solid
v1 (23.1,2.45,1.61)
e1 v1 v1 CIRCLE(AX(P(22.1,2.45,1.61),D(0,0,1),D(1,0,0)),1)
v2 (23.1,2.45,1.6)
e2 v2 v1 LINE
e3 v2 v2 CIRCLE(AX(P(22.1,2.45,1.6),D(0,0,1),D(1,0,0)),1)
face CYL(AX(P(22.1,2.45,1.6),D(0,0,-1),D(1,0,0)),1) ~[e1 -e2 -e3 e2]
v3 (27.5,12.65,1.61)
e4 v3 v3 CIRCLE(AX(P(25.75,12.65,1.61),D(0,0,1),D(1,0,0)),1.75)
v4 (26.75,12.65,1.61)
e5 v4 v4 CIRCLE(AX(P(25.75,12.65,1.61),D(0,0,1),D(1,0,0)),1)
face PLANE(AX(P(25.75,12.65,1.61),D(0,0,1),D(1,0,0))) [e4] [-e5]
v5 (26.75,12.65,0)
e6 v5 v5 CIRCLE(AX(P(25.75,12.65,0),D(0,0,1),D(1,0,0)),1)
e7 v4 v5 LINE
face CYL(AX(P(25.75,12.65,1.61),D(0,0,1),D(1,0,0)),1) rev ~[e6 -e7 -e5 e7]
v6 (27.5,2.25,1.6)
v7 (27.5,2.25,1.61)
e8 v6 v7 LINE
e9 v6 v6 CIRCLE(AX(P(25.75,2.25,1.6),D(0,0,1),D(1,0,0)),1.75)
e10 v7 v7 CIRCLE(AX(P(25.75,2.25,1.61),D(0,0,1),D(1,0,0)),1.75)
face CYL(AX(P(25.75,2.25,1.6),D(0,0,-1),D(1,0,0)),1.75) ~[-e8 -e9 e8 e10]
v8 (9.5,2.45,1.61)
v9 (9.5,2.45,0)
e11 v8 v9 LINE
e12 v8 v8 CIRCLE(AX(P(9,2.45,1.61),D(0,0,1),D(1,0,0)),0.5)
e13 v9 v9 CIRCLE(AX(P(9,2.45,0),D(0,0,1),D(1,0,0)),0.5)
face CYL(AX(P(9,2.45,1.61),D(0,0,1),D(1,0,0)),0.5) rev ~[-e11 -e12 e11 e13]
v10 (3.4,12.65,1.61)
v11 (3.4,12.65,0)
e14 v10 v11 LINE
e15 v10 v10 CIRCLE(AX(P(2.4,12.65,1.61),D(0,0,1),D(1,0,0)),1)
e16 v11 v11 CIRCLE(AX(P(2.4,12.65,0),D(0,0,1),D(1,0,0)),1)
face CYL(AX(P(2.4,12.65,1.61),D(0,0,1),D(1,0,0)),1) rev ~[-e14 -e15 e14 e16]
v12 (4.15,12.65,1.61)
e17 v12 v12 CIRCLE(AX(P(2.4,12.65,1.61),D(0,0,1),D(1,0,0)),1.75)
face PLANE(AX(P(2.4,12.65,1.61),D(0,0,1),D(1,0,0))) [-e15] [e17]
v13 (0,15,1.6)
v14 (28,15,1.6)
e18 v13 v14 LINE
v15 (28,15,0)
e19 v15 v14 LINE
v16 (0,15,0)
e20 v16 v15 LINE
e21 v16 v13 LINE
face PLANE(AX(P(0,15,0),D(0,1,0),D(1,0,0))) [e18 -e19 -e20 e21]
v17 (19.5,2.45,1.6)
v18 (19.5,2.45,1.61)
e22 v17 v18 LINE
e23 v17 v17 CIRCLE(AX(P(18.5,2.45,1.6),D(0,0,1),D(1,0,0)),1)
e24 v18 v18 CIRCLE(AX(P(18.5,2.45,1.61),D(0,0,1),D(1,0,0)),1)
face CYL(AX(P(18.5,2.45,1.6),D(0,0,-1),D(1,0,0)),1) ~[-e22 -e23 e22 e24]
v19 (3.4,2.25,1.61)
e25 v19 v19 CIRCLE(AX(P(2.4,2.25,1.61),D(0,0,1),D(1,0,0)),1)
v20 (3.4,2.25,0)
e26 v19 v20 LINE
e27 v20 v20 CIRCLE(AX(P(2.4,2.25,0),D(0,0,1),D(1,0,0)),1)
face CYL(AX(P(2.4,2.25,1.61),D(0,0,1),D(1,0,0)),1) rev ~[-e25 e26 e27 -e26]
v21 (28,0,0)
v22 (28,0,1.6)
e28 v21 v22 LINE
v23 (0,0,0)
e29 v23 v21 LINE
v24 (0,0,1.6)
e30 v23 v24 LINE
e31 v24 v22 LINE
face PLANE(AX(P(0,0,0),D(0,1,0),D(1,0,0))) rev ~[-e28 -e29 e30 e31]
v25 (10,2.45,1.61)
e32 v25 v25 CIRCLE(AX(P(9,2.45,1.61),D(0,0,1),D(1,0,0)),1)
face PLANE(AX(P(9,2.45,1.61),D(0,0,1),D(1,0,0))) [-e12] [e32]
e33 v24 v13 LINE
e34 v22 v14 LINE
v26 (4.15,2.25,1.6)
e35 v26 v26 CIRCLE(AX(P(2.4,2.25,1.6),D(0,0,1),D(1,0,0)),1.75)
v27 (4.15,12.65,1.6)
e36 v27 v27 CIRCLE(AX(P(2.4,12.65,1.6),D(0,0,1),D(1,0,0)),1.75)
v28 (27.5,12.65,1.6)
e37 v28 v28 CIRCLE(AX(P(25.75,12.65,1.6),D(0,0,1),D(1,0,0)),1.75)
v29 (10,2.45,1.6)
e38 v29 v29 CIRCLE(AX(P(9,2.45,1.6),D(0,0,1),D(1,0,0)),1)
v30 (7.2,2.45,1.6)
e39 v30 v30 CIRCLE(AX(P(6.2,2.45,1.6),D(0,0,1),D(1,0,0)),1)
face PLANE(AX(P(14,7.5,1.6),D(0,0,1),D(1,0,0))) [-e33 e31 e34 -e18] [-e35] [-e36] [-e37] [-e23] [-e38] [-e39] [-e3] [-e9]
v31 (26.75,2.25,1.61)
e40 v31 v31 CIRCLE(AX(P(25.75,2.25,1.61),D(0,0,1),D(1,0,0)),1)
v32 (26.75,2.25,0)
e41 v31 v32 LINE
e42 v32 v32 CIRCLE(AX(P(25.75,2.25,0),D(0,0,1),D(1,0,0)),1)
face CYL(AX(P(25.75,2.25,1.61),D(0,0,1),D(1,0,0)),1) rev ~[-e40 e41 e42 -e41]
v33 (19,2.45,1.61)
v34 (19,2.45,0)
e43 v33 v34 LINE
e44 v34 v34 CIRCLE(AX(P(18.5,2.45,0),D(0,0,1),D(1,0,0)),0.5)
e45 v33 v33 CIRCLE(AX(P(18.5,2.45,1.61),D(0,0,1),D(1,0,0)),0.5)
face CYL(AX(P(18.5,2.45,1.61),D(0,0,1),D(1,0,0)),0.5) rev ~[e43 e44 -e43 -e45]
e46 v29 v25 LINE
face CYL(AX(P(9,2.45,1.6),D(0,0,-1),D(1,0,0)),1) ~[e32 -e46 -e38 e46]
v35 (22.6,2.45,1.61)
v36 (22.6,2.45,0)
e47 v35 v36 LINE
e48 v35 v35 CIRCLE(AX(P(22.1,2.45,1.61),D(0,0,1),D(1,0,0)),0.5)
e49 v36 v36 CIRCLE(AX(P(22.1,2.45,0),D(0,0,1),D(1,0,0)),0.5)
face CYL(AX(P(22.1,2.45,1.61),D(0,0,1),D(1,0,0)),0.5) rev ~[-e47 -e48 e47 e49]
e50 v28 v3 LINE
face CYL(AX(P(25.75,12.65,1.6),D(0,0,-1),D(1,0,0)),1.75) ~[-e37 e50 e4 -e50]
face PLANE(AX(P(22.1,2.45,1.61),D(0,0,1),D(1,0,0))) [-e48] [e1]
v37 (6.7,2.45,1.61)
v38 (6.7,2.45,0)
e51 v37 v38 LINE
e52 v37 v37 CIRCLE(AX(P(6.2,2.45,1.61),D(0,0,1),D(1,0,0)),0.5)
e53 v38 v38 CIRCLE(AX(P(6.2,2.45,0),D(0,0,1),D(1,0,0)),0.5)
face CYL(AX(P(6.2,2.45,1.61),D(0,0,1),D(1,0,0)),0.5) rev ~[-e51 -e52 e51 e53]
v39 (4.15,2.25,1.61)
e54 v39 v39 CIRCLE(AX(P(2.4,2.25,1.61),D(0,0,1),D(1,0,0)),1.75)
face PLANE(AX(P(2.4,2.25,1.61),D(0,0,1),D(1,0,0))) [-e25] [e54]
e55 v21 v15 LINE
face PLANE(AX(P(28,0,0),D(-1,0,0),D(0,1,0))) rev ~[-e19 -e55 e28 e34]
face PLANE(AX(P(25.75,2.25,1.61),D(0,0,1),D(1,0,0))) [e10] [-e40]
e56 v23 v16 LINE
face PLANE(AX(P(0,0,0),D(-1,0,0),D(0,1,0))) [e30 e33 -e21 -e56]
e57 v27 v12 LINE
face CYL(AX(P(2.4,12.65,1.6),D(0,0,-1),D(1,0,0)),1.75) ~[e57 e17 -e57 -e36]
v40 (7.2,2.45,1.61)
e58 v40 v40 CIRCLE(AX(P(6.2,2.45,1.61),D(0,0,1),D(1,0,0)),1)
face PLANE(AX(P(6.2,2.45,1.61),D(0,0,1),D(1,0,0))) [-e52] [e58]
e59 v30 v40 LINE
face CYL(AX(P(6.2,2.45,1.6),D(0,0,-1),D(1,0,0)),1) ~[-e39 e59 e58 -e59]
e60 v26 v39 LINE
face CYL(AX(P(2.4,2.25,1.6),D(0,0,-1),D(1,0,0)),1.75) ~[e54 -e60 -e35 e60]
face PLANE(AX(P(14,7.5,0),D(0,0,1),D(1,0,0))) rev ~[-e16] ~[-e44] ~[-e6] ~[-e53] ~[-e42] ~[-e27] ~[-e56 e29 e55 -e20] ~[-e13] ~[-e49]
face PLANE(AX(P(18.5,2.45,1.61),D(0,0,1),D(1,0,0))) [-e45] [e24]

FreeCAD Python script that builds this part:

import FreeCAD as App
import Part
import Sketcher

V = App.Vector

doc = App.newDocument("Part")
body = doc.addObject("PartDesign::Body", "Body")

sketch1 = body.newObject("Sketcher::SketchObject", "Sketch")
sketch1.AttachmentSupport = (doc.getObject("XY_Plane"), [""])
sketch1.MapMode = "FlatFace"
sketch1.addGeometry([
    Part.LineSegment(V(0, 15, 0), V(0, 0, 0)),
    Part.LineSegment(V(0, 0, 0), V(28, 0, 0)),
    Part.LineSegment(V(28, 0, 0), V(28, 15, 0)),
    Part.LineSegment(V(28, 15, 0), V(0, 15, 0)),
], False)
sketch1.addConstraint([
    Sketcher.Constraint("Coincident", 0, 2, 1, 1),
    Sketcher.Constraint("Coincident", 1, 2, 2, 1),
    Sketcher.Constraint("Coincident", 2, 2, 3, 1),
    Sketcher.Constraint("Coincident", 3, 2, 0, 1),
    Sketcher.Constraint("Vertical", 0),
    Sketcher.Constraint("Horizontal", 1),
    Sketcher.Constraint("Vertical", 2),
    Sketcher.Constraint("Horizontal", 3),
    Sketcher.Constraint("Coincident", 0, 2, -1, 1),
    Sketcher.Constraint("DistanceX", 1, 1, 1, 2, 28.0),
    Sketcher.Constraint("DistanceY", 0, 2, 0, 1, 15.0),
])
pad1 = body.newObject("PartDesign::Pad", "Pad")
pad1.Profile = sketch1
pad1.Length = 1.6

sketch2 = body.newObject("Sketcher::SketchObject", "Sketch001")
sketch2.AttachmentSupport = (doc.getObject("XY_Plane"), [""])
sketch2.MapMode = "FlatFace"
sketch2.AttachmentOffset = App.Placement(V(0, 0, 1.6), App.Rotation())
sketch2.addGeometry([
    Part.Circle(V(2.4, 2.25, 0), V(0, 0, 1), 1.75),
    Part.Circle(V(25.75, 2.25, 0), V(0, 0, 1), 1.75),
    Part.Circle(V(2.4, 12.65, 0), V(0, 0, 1), 1.75),
    Part.Circle(V(25.75, 12.65, 0), V(0, 0, 1), 1.75),
    Part.Circle(V(6.2, 2.45, 0), V(0, 0, 1), 1),
    Part.Circle(V(9, 2.45, 0), V(0, 0, 1), 1),
    Part.Circle(V(18.5, 2.45, 0), V(0, 0, 1), 1),
    Part.Circle(V(22.1, 2.45, 0), V(0, 0, 1), 1),
], False)
sketch2.addConstraint([
    Sketcher.Constraint("Equal", 0, 1),
    Sketcher.Constraint("Equal", 1, 2),
    Sketcher.Constraint("Equal", 2, 3),
    Sketcher.Constraint("Equal", 4, 5),
    Sketcher.Constraint("Equal", 5, 6),
    Sketcher.Constraint("Equal", 6, 7),
    Sketcher.Constraint("Horizontal", 0, 3, 1, 3),
    Sketcher.Constraint("Horizontal", 2, 3, 3, 3),
    Sketcher.Constraint("Horizontal", 4, 3, 5, 3),
    Sketcher.Constraint("Horizontal", 5, 3, 6, 3),
    Sketcher.Constraint("Horizontal", 6, 3, 7, 3),
    Sketcher.Constraint("Vertical", 0, 3, 2, 3),
    Sketcher.Constraint("Vertical", 1, 3, 3, 3),
    Sketcher.Constraint("Diameter", 4, 2.0),
    Sketcher.Constraint("Diameter", 0, 3.5),
    Sketcher.Constraint("DistanceX", -1, 1, 5, 3, 9.0),
    Sketcher.Constraint("DistanceX", -1, 1, 0, 3, 2.4),
    Sketcher.Constraint("DistanceX", -1, 1, 4, 3, 6.2),
    Sketcher.Constraint("DistanceX", -1, 1, 6, 3, 18.5),
    Sketcher.Constraint("DistanceX", -1, 1, 7, 3, 22.1),
    Sketcher.Constraint("DistanceY", 0, 3, 2, 3, 10.4),
    Sketcher.Constraint("DistanceY", 0, 3, 4, 3, 0.2),
    Sketcher.Constraint("DistanceY", -1, 1, 0, 3, 2.25),
    Sketcher.Constraint("DistanceX", -1, 1, 1, 3, 25.75),
])
pad2 = body.newObject("PartDesign::Pad", "Pad001")
pad2.Profile = sketch2
pad2.Length = 0.01

sketch3 = body.newObject("Sketcher::SketchObject", "Sketch002")
sketch3.AttachmentSupport = (doc.getObject("XY_Plane"), [""])
sketch3.MapMode = "FlatFace"
sketch3.AttachmentOffset = App.Placement(V(0, 0, 1.61), App.Rotation())
sketch3.addGeometry([
    Part.Circle(V(2.4, 2.25, 0), V(0, 0, 1), 1),
    Part.Circle(V(2.4, 12.65, 0), V(0, 0, 1), 1),
    Part.Circle(V(25.75, 12.65, 0), V(0, 0, 1), 1),
    Part.Circle(V(25.75, 2.25, 0), V(0, 0, 1), 1),
    Part.Circle(V(6.2, 2.45, 0), V(0, 0, 1), 0.5),
    Part.Circle(V(9, 2.45, 0), V(0, 0, 1), 0.5),
    Part.Circle(V(18.5, 2.45, 0), V(0, 0, 1), 0.5),
    Part.Circle(V(22.1, 2.45, 0), V(0, 0, 1), 0.5),
], False)
sketch3.addConstraint([
    Sketcher.Constraint("Equal", 0, 1),
    Sketcher.Constraint("Equal", 1, 2),
    Sketcher.Constraint("Equal", 2, 3),
    Sketcher.Constraint("Equal", 4, 5),
    Sketcher.Constraint("Equal", 5, 6),
    Sketcher.Constraint("Equal", 6, 7),
    Sketcher.Constraint("Horizontal", 1, 3, 2, 3),
    Sketcher.Constraint("Horizontal", 0, 3, 3, 3),
    Sketcher.Constraint("Horizontal", 4, 3, 5, 3),
    Sketcher.Constraint("Horizontal", 5, 3, 6, 3),
    Sketcher.Constraint("Horizontal", 6, 3, 7, 3),
    Sketcher.Constraint("Vertical", 0, 3, 1, 3),
    Sketcher.Constraint("Vertical", 2, 3, 3, 3),
    Sketcher.Constraint("Diameter", 0, 2.0),
    Sketcher.Constraint("Diameter", 4, 1.0),
    Sketcher.Constraint("DistanceX", -1, 1, 5, 3, 9.0),
    Sketcher.Constraint("DistanceX", -1, 1, 0, 3, 2.4),
    Sketcher.Constraint("DistanceX", -1, 1, 4, 3, 6.2),
    Sketcher.Constraint("DistanceX", -1, 1, 6, 3, 18.5),
    Sketcher.Constraint("DistanceX", -1, 1, 7, 3, 22.1),
    Sketcher.Constraint("DistanceY", 0, 3, 1, 3, 10.4),
    Sketcher.Constraint("DistanceY", 0, 3, 4, 3, 0.2),
    Sketcher.Constraint("DistanceY", -1, 1, 0, 3, 2.25),
    Sketcher.Constraint("DistanceX", -1, 1, 2, 3, 25.75),
])
pocket1 = body.newObject("PartDesign::Pocket", "Pocket")
pocket1.Profile = sketch3
pocket1.Type = "ThroughAll"

doc.recompute()
